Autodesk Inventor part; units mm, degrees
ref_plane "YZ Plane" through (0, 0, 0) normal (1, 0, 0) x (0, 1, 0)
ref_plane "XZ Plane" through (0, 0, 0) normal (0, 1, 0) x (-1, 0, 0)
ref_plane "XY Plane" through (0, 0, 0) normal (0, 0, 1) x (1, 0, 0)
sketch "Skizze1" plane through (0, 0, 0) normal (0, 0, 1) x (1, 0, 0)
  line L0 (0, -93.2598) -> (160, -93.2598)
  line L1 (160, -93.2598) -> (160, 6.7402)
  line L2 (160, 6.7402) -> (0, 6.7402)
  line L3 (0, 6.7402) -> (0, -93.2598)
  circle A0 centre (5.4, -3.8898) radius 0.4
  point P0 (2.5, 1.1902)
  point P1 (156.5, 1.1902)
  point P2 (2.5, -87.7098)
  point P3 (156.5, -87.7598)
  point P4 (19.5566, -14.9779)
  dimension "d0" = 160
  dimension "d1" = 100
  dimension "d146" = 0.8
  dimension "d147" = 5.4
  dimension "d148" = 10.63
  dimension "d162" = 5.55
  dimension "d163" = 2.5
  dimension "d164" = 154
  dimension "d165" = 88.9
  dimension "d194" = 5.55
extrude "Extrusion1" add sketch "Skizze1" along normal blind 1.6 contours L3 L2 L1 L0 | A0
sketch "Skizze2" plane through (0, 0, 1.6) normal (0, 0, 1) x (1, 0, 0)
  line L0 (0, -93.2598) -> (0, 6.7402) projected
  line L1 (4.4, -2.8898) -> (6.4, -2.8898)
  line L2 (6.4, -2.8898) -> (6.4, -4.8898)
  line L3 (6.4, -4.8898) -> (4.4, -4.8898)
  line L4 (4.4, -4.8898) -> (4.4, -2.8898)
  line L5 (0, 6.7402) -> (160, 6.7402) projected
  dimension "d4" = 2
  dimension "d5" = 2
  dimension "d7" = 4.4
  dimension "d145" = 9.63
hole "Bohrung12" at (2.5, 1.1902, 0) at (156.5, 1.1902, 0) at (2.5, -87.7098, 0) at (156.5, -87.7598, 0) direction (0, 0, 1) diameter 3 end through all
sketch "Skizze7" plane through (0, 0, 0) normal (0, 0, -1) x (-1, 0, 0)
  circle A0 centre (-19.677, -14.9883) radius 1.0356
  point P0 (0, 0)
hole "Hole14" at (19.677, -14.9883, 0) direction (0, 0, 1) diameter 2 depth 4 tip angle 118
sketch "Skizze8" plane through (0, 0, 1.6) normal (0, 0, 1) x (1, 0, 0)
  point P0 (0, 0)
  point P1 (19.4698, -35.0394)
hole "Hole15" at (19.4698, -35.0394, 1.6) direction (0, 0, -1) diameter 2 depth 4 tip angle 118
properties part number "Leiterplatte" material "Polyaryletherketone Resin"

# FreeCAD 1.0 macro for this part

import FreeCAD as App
import Part
import Sketcher

V = App.Vector
Q = App.Units.Quantity


def add_polygon(sketch, points):
    """Adds a closed chain of lines whose ends are joined by coincident constraints."""
    first, n = sketch.GeometryCount, len(points)
    for a, b in zip(points, points[1:] + points[:1]):
        sketch.addGeometry(Part.LineSegment(App.Vector(*a, 0), App.Vector(*b, 0)), False)
    for i in range(n):
        sketch.addConstraint(Sketcher.Constraint("Coincident", first + i, 2, first + (i + 1) % n, 1))

doc = App.newDocument("Part")
body = doc.addObject("PartDesign::Body", "Body")

# Sketch on XY plane
sketch1 = body.newObject("Sketcher::SketchObject", "Sketch")
sketch1.AttachmentSupport = (doc.getObject("XY_Plane"), [""])
sketch1.MapMode = "FlatFace"
add_polygon(sketch1, [(0, 7), (0, -93), (160, -93), (160, 7)])  # lines 0-3
sketch1.addConstraint([
    Sketcher.Constraint("Vertical", 0),
    Sketcher.Constraint("Horizontal", 1),
    Sketcher.Constraint("Vertical", 2),
    Sketcher.Constraint("Horizontal", 3),
    Sketcher.Constraint("PointOnObject", 0, 2, -2),
    Sketcher.Constraint("DistanceX", 1, 1, 1, 2, Q("160 mm")),
    Sketcher.Constraint("DistanceY", 0, 2, 0, 1, Q("100 mm")),
    Sketcher.Constraint("DistanceY", 0, 2, -1, 1, Q("93.2598 mm")),
])
pad1 = body.newObject("PartDesign::Pad", "Pad")
pad1.Profile = sketch1
pad1.Length = 1.6

# Sketch on XY plane
sketch2 = body.newObject("Sketcher::SketchObject", "Sketch001")
sketch2.AttachmentSupport = (doc.getObject("XY_Plane"), [""])
sketch2.MapMode = "FlatFace"
sketch2.addGeometry([
    Part.Circle(V(2.5, 1.2, 0), V(0, 0, 1), 1.5),
    Part.Circle(V(156.5, 1.2, 0), V(0, 0, 1), 1.5),
    Part.Circle(V(2.5, -87.7, 0), V(0, 0, 1), 1.5),
    Part.Circle(V(156.5, -87.8, 0), V(0, 0, 1), 1.5),
], False)
sketch2.addConstraint([
    Sketcher.Constraint("Equal", 0, 1),
    Sketcher.Constraint("Equal", 1, 2),
    Sketcher.Constraint("Equal", 2, 3),
    Sketcher.Constraint("Horizontal", 0, 3, 1, 3),
    Sketcher.Constraint("Vertical", 0, 3, 2, 3),
    Sketcher.Constraint("Vertical", 1, 3, 3, 3),
    Sketcher.Constraint("Diameter", 0, Q("3 mm")),
    Sketcher.Constraint("DistanceX", 0, 3, 1, 3, Q("154 mm")),
    Sketcher.Constraint("DistanceX", -1, 1, 0, 3, Q("2.5 mm")),
    Sketcher.Constraint("DistanceY", 2, 3, 0, 3, Q("88.9 mm")),
    Sketcher.Constraint("DistanceY", 3, 3, 1, 3, Q("88.95 mm")),
    Sketcher.Constraint("DistanceY", -1, 1, 0, 3, Q("1.1902 mm")),
])
doc.recompute()
hole = body.newObject("PartDesign::Hole", "Hole")
hole.Profile = sketch2
hole.ThreadType = "None"
hole.Diameter = 3
hole.DepthType = "ThroughAll"
hole.Reversed = True

# Sketch on XY plane
sketch3 = body.newObject("Sketcher::SketchObject", "Sketch002")
sketch3.AttachmentSupport = (doc.getObject("XY_Plane"), [""])
sketch3.MapMode = "FlatFace"
sketch3.addGeometry(Part.Circle(V(19.7, -15, 0), V(0, 0, 1), 1), False)
sketch3.addConstraint([
    Sketcher.Constraint("Diameter", 0, Q("2 mm")),
    Sketcher.Constraint("DistanceX", -1, 1, 0, 3, Q("19.677 mm")),
    Sketcher.Constraint("DistanceY", 0, 3, -1, 1, Q("14.9883 mm")),
])
doc.recompute()
hole2 = body.newObject("PartDesign::Hole", "Hole001")
hole2.Profile = sketch3
hole2.ThreadType = "None"
hole2.Diameter = 2
hole2.DepthType = "Dimension"
hole2.Depth = 4
hole2.DrillPoint = "Angled"
hole2.DrillPointAngle = 118
hole2.Reversed = True

# Sketch on XY plane
sketch4 = body.newObject("Sketcher::SketchObject", "Sketch003")
sketch4.AttachmentSupport = (doc.getObject("XY_Plane"), [""])
sketch4.MapMode = "FlatFace"
sketch4.AttachmentOffset = App.Placement(V(0, 0, 1.6), App.Rotation())
sketch4.addGeometry(Part.Circle(V(19.5, -35, 0), V(0, 0, 1), 1), False)
sketch4.addConstraint([
    Sketcher.Constraint("Diameter", 0, Q("2 mm")),
    Sketcher.Constraint("DistanceX", -1, 1, 0, 3, Q("19.4698 mm")),
    Sketcher.Constraint("DistanceY", 0, 3, -1, 1, Q("35.0394 mm")),
])
doc.recompute()
hole3 = body.newObject("PartDesign::Hole", "Hole002")
hole3.Profile = sketch4
hole3.ThreadType = "None"
hole3.Diameter = 2
hole3.DepthType = "Dimension"
hole3.Depth = 4
hole3.DrillPoint = "Angled"
hole3.DrillPointAngle = 118

doc.recompute()
